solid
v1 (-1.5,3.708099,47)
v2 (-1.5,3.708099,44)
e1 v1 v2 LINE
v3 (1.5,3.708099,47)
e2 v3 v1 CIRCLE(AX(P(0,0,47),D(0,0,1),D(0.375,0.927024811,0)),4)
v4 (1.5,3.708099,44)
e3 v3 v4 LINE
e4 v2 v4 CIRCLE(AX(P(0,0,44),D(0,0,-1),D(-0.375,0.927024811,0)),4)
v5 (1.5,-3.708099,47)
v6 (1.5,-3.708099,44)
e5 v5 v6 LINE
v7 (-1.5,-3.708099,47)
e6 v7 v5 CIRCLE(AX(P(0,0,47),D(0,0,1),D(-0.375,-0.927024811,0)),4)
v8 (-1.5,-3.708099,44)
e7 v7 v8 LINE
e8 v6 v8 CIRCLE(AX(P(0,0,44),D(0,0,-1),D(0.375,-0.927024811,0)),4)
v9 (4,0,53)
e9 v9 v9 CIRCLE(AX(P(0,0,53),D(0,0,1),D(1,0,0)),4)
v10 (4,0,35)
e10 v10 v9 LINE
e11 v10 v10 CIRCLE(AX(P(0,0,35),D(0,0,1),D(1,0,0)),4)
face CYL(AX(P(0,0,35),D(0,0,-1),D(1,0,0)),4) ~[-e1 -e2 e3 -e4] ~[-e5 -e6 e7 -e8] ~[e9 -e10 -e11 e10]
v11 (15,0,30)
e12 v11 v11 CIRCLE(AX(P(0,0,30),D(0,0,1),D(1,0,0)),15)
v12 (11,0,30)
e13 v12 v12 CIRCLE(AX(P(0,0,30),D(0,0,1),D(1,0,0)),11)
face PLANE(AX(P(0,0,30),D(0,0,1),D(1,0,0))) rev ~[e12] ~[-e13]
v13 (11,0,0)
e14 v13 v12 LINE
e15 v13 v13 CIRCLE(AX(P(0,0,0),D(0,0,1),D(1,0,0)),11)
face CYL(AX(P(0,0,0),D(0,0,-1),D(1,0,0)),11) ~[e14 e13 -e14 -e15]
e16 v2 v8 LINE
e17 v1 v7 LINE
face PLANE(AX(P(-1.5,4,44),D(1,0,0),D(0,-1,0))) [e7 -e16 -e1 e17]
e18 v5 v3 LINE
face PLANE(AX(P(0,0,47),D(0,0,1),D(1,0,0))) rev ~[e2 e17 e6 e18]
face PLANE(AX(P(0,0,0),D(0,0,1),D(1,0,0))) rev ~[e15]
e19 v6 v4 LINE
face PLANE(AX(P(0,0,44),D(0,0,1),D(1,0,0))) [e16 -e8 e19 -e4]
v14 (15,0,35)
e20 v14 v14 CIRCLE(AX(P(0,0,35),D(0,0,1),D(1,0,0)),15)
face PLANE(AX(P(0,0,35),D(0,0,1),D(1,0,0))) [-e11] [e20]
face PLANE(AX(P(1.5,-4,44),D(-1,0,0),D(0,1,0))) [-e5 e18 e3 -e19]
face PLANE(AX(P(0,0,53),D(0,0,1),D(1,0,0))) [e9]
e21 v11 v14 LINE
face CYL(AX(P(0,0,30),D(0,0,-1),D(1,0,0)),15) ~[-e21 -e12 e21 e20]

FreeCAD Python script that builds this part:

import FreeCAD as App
import Part
import Sketcher


def add_polygon(sketch, points):
    """Adds a closed chain of lines whose ends are joined by coincident constraints."""
    first, n = sketch.GeometryCount, len(points)
    for a, b in zip(points, points[1:] + points[:1]):
        sketch.addGeometry(Part.LineSegment(App.Vector(*a, 0), App.Vector(*b, 0)), False)
    for i in range(n):
        sketch.addConstraint(Sketcher.Constraint("Coincident", first + i, 2, first + (i + 1) % n, 1))

doc = App.newDocument("Part")
body = doc.addObject("PartDesign::Body", "Body")

# Sketch on XY plane
sketch1 = body.newObject("Sketcher::SketchObject", "Sketch")
sketch1.AttachmentSupport = (doc.getObject("XY_Plane"), [""])
sketch1.MapMode = "FlatFace"
sketch1.addGeometry(Part.Circle(App.Vector(0, 0, 0), App.Vector(0, 0, 1), 11), False)
sketch1.addConstraint(Sketcher.Constraint("Coincident", 0, 3, -1, 1))
sketch1.addConstraint(Sketcher.Constraint("Diameter", 0, 22.0))
pad1 = body.newObject("PartDesign::Pad", "Pad")
pad1.Profile = sketch1
pad1.Length = 30

# Sketch on XY plane
sketch2 = body.newObject("Sketcher::SketchObject", "Sketch001")
sketch2.AttachmentSupport = (doc.getObject("XY_Plane"), [""])
sketch2.MapMode = "FlatFace"
sketch2.AttachmentOffset = App.Placement(App.Vector(0, 0, 30), App.Rotation())
sketch2.addGeometry(Part.Circle(App.Vector(0, 0, 0), App.Vector(0, 0, 1), 15), False)
sketch2.addConstraint(Sketcher.Constraint("Coincident", 0, 3, -1, 1))
sketch2.addConstraint(Sketcher.Constraint("Diameter", 0, 30.0))
pad2 = body.newObject("PartDesign::Pad", "Pad001")
pad2.Profile = sketch2
pad2.Length = 5

# Sketch on XY plane
sketch3 = body.newObject("Sketcher::SketchObject", "Sketch002")
sketch3.AttachmentSupport = (doc.getObject("XY_Plane"), [""])
sketch3.MapMode = "FlatFace"
sketch3.AttachmentOffset = App.Placement(App.Vector(0, 0, 35), App.Rotation())
sketch3.addGeometry(Part.Circle(App.Vector(0, 0, 0), App.Vector(0, 0, 1), 4), False)
sketch3.addConstraint(Sketcher.Constraint("Coincident", 0, 3, -1, 1))
sketch3.addConstraint(Sketcher.Constraint("Diameter", 0, 8.0))
pad3 = body.newObject("PartDesign::Pad", "Pad002")
pad3.Profile = sketch3
pad3.Length = 18

# Sketch on XY plane
sketch4 = body.newObject("Sketcher::SketchObject", "Sketch003")
sketch4.AttachmentSupport = (doc.getObject("XY_Plane"), [""])
sketch4.MapMode = "FlatFace"
sketch4.AttachmentOffset = App.Placement(App.Vector(0, 0, 44), App.Rotation())
add_polygon(sketch4, [(1.5, -4), (1.5, 4), (-1.5, 4), (-1.5, -4)])  # lines 0-3
sketch4.addConstraint(Sketcher.Constraint("Vertical", 0))
sketch4.addConstraint(Sketcher.Constraint("Horizontal", 1))
sketch4.addConstraint(Sketcher.Constraint("Vertical", 2))
sketch4.addConstraint(Sketcher.Constraint("Horizontal", 3))
sketch4.addConstraint(Sketcher.Constraint("Symmetric", 0, 2, 2, 2, -1, 1))
sketch4.addConstraint(Sketcher.Constraint("DistanceX", 1, 2, 1, 1, 3.0))
sketch4.addConstraint(Sketcher.Constraint("DistanceY", 0, 1, 0, 2, 8.0))
pocket1 = body.newObject("PartDesign::Pocket", "Pocket")
pocket1.Profile = sketch4
pocket1.Length = 3
pocket1.Reversed = True

doc.recompute()
